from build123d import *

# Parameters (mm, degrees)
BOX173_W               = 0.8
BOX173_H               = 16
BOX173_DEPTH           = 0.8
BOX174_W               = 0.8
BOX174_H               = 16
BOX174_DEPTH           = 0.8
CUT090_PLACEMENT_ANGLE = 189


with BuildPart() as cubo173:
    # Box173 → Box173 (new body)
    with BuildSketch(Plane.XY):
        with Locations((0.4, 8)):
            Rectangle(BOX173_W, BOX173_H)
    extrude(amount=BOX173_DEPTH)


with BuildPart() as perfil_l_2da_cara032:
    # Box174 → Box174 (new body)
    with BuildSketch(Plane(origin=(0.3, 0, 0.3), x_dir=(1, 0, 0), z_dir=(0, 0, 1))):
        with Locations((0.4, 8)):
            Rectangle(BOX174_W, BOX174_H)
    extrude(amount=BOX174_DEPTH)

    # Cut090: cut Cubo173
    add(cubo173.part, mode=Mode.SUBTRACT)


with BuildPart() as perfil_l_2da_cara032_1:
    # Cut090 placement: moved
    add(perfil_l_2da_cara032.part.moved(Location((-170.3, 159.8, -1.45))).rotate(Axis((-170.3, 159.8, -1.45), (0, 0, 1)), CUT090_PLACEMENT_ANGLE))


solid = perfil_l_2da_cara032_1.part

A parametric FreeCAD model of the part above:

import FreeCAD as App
import Part
import Sketcher
from FreeCAD import Vector


def add_polygon(sketch, points):
    """Adds a closed chain of lines whose ends are joined by coincident constraints."""
    first, n = sketch.GeometryCount, len(points)
    for a, b in zip(points, points[1:] + points[:1]):
        sketch.addGeometry(Part.LineSegment(App.Vector(*a, 0), App.Vector(*b, 0)), False)
    for i in range(n):
        sketch.addConstraint(Sketcher.Constraint("Coincident", first + i, 2, first + (i + 1) % n, 1))

doc = App.newDocument("Part")
body = doc.addObject("PartDesign::Body", "Body")

# Sketch on XY plane
sketch1 = body.newObject("Sketcher::SketchObject", "Sketch")
sketch1.AttachmentSupport = (doc.getObject("XY_Plane"), [""])
sketch1.MapMode = "FlatFace"
add_polygon(sketch1, [(0, 16), (0, 0), (0.8, 0), (0.8, 16)])  # lines 0-3
sketch1.addConstraint([
    Sketcher.Constraint("Vertical", 0),
    Sketcher.Constraint("Horizontal", 1),
    Sketcher.Constraint("Vertical", 2),
    Sketcher.Constraint("Horizontal", 3),
    Sketcher.Constraint("Coincident", 0, 2, -1, 1),
    Sketcher.Constraint("DistanceY", 0, 2, 0, 1, 16.0),
    Sketcher.Constraint("DistanceX", 1, 1, 1, 2, 0.8),
])
pad1 = body.newObject("PartDesign::Pad", "Pad")
pad1.Profile = sketch1
pad1.Length = 0.8
body2 = doc.addObject("PartDesign::Body", "Body001")

# Sketch on XY plane
sketch2 = body2.newObject("Sketcher::SketchObject", "Sketch001")
sketch2.AttachmentSupport = (doc.getObject("XY_Plane001"), [""])
sketch2.MapMode = "FlatFace"
sketch2.AttachmentOffset = App.Placement(Vector(0, 0, 0.3), App.Rotation())
add_polygon(sketch2, [(0.3, 16), (0.3, 0), (1.1, 0), (1.1, 16)])  # lines 0-3
sketch2.addConstraint([
    Sketcher.Constraint("Vertical", 0),
    Sketcher.Constraint("Horizontal", 1),
    Sketcher.Constraint("Vertical", 2),
    Sketcher.Constraint("Horizontal", 3),
    Sketcher.Constraint("PointOnObject", 0, 2, -1),
    Sketcher.Constraint("DistanceY", 0, 2, 0, 1, 16.0),
    Sketcher.Constraint("DistanceX", 1, 1, 1, 2, 0.8),
    Sketcher.Constraint("DistanceX", -1, 1, 0, 2, 0.3),
])
pad2 = body2.newObject("PartDesign::Pad", "Pad001")
pad2.Profile = sketch2
pad2.Length = 0.8
doc.recompute()

boolean = body2.newObject("PartDesign::Boolean", "Boolean")
boolean.Type = "Cut"
boolean.addObjects([body])
body3 = doc.addObject("PartDesign::Body", "Body002")
doc.recompute()

body2.Placement = App.Placement(Vector(-170.3, 159.8, -1.45), App.Rotation(Vector(0, 0, 1), 189))
boolean2 = body3.newObject("PartDesign::Boolean", "Boolean001")
boolean2.Type = "Fuse"
boolean2.addObjects([body2])

doc.recompute()
